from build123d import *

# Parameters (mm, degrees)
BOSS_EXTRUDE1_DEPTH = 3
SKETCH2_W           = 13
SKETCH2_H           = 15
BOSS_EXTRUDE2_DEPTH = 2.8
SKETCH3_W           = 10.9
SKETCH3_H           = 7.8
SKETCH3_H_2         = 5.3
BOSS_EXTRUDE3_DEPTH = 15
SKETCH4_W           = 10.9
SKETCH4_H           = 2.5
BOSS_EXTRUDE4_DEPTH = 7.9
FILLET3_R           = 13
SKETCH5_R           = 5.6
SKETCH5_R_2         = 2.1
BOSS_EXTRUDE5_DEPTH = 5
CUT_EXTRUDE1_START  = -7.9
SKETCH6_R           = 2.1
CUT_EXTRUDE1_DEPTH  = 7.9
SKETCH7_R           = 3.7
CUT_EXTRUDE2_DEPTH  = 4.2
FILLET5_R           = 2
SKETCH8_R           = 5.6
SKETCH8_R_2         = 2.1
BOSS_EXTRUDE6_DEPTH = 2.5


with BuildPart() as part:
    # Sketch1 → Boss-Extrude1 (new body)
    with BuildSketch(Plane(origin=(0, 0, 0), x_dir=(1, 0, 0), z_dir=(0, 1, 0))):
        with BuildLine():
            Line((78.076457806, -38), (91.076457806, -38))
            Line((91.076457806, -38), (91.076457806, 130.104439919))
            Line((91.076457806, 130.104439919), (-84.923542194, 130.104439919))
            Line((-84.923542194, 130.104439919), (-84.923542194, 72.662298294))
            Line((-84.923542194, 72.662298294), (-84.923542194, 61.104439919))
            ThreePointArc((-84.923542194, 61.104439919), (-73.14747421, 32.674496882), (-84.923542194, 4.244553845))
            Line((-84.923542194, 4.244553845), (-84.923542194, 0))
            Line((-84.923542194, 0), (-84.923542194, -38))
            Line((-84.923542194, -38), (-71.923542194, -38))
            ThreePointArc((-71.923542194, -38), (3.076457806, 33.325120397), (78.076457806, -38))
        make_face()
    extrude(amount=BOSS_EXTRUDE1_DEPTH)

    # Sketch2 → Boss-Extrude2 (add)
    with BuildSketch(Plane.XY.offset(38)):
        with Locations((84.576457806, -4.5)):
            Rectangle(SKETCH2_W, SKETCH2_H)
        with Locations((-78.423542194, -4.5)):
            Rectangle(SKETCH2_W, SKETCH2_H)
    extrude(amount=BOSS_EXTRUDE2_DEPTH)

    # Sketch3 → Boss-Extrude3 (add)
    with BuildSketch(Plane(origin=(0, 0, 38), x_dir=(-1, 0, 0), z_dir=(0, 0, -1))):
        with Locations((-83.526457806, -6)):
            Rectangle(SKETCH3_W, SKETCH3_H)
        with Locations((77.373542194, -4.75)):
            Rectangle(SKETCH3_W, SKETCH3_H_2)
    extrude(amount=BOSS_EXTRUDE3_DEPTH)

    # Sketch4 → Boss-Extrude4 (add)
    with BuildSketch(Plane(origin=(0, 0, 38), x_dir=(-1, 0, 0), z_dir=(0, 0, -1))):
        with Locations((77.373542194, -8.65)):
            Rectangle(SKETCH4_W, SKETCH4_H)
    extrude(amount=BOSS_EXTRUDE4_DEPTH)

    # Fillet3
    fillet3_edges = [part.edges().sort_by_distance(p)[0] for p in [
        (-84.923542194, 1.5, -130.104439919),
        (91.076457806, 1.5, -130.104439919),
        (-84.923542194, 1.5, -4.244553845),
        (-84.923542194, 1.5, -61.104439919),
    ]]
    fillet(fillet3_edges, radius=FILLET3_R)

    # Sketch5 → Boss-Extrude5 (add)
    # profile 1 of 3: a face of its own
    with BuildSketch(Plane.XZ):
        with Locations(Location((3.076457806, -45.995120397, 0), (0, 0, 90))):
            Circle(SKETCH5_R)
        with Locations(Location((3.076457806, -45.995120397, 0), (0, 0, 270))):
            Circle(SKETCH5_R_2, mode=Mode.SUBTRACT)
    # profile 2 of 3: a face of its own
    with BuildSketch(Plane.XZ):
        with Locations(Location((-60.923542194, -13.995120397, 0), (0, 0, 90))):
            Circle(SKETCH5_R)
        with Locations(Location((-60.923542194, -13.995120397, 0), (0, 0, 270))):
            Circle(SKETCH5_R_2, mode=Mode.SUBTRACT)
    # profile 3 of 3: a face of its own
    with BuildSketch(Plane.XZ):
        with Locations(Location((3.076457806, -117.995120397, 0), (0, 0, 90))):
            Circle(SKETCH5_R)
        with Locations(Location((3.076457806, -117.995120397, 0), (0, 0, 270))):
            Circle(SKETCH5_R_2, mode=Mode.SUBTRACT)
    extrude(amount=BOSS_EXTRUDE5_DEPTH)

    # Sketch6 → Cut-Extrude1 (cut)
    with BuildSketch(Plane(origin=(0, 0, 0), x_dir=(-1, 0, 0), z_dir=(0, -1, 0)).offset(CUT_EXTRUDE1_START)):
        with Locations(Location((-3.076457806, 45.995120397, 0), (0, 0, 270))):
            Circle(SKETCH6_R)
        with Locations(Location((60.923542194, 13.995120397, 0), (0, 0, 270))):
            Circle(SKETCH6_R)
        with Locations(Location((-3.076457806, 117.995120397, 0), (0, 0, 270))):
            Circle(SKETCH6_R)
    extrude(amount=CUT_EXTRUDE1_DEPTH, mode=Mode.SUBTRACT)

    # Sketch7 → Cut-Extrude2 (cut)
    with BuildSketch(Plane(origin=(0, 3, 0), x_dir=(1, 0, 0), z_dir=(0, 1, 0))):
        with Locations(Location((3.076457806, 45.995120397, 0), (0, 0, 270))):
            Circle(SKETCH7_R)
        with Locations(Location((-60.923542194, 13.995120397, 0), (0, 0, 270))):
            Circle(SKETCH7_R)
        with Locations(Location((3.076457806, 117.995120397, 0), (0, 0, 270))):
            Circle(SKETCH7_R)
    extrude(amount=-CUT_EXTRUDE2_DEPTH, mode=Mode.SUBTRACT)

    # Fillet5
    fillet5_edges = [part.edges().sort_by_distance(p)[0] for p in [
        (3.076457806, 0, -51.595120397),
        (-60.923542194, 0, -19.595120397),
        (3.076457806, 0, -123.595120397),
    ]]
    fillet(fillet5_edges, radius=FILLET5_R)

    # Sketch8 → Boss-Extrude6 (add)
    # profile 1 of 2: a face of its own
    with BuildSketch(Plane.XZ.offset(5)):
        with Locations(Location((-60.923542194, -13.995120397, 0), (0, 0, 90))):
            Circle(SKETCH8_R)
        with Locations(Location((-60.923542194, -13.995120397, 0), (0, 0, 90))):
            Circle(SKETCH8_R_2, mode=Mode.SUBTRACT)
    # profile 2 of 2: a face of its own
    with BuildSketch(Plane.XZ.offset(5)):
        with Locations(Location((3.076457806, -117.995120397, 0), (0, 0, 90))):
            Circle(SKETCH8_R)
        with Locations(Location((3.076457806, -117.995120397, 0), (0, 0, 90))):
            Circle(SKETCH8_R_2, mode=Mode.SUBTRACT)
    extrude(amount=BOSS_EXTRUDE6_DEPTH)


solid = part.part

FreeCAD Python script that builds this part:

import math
import FreeCAD as App
import Part
import Sketcher


def edges_at(feature, points):
    """Names of the edges that pass closest to the given points."""
    edges = feature.Shape.Edges
    near = lambda p: min(range(len(edges)), key=lambda i: edges[i].distToShape(Part.Vertex(*p))[0])
    return sorted({f"Edge{near(p) + 1}" for p in points})

doc = App.newDocument("Part")
body = doc.addObject("PartDesign::Body", "Body")

sketch1 = doc.addObject("Sketcher::SketchObject", "Sketch")
body.addObject(sketch1)
sketch1.AttachmentSupport = (doc.XZ_Plane, [""])
sketch1.MapMode = "FlatFace"
sketch1.addGeometry([
    Part.LineSegment(App.Vector(78, 38, 0), App.Vector(91, 38, 0)),
    Part.LineSegment(App.Vector(91, 38, 0), App.Vector(91, -130, 0)),
    Part.LineSegment(App.Vector(91, -130, 0), App.Vector(-85, -130, 0)),
    Part.LineSegment(App.Vector(-85, -130, 0), App.Vector(-85, -61, 0)),
    Part.ArcOfCircle(Part.Circle(App.Vector(-113, -33, 0), App.Vector(0, 0, 1), 40), math.radians(-45), math.radians(45)),
    Part.LineSegment(App.Vector(-85, -4, 0), App.Vector(-85, 38, 0)),
    Part.LineSegment(App.Vector(-85, 38, 0), App.Vector(-72, 38, 0)),
    Part.ArcOfCircle(Part.Circle(App.Vector(3, 42, 0), App.Vector(0, 0, 1), 75), math.radians(-177), math.radians(-3)),
], False)
sketch1.addConstraint([
    Sketcher.Constraint("Coincident", 0, 2, 1, 1),
    Sketcher.Constraint("Coincident", 1, 2, 2, 1),
    Sketcher.Constraint("Coincident", 2, 2, 3, 1),
    Sketcher.Constraint("Coincident", 3, 2, 4, 1),
    Sketcher.Constraint("Coincident", 4, 2, 5, 1),
    Sketcher.Constraint("Coincident", 5, 2, 6, 1),
    Sketcher.Constraint("Coincident", 6, 2, 7, 1),
    Sketcher.Constraint("Coincident", 7, 2, 0, 1),
    Sketcher.Constraint("Horizontal", 0),
    Sketcher.Constraint("Vertical", 1),
    Sketcher.Constraint("Horizontal", 2),
    Sketcher.Constraint("Vertical", 3),
    Sketcher.Constraint("Vertical", 5),
    Sketcher.Constraint("Horizontal", 6),
    Sketcher.Constraint("Horizontal", 0, 2, 5, 2),
    Sketcher.Constraint("Vertical", 3, 2, 4, 2),
    Sketcher.Constraint("Equal", 0, 6),
    Sketcher.Constraint("DistanceX", 0, 1, 0, 2, 13.0),
    Sketcher.Constraint("DistanceX", 2, 2, 2, 1, 176.0),
    Sketcher.Constraint("DistanceY", 3, 1, 3, 2, 69.0),
    Sketcher.Constraint("DistanceY", -1, 1, 0, 2, 38.0),
    Sketcher.Constraint("Radius", 4, 40.206011),
    Sketcher.Constraint("Radius", 7, 75.09467),
    Sketcher.Constraint("DistanceY", 1, 2, 1, 1, 168.10444),
    Sketcher.Constraint("DistanceY", 5, 1, 5, 2, 42.244554),
    Sketcher.Constraint("DistanceX", 4, 3, -1, 1, 113.353485),
])
pad1 = doc.addObject("PartDesign::Pad", "Pad")
body.addObject(pad1)
pad1.Profile = sketch1
pad1.Length = 3
pad1.Reversed = True

sketch2 = doc.addObject("Sketcher::SketchObject", "Sketch001")
body.addObject(sketch2)
sketch2.AttachmentSupport = (doc.XY_Plane, [""])
sketch2.MapMode = "FlatFace"
sketch2.AttachmentOffset = App.Placement(App.Vector(0, 0, 38), App.Rotation())
sketch2.addGeometry([
    Part.LineSegment(App.Vector(78, 3, 0), App.Vector(78, -12, 0)),
    Part.LineSegment(App.Vector(78, -12, 0), App.Vector(91, -12, 0)),
    Part.LineSegment(App.Vector(91, -12, 0), App.Vector(91, 3, 0)),
    Part.LineSegment(App.Vector(91, 3, 0), App.Vector(78, 3, 0)),
    Part.LineSegment(App.Vector(-85, 3, 0), App.Vector(-85, -12, 0)),
    Part.LineSegment(App.Vector(-85, -12, 0), App.Vector(-72, -12, 0)),
    Part.LineSegment(App.Vector(-72, -12, 0), App.Vector(-72, 3, 0)),
    Part.LineSegment(App.Vector(-72, 3, 0), App.Vector(-85, 3, 0)),
], False)
sketch2.addConstraint([
    Sketcher.Constraint("Coincident", 0, 2, 1, 1),
    Sketcher.Constraint("Coincident", 1, 2, 2, 1),
    Sketcher.Constraint("Coincident", 2, 2, 3, 1),
    Sketcher.Constraint("Coincident", 3, 2, 0, 1),
    Sketcher.Constraint("Coincident", 4, 2, 5, 1),
    Sketcher.Constraint("Coincident", 5, 2, 6, 1),
    Sketcher.Constraint("Coincident", 6, 2, 7, 1),
    Sketcher.Constraint("Coincident", 7, 2, 4, 1),
    Sketcher.Constraint("Vertical", 0),
    Sketcher.Constraint("Horizontal", 1),
    Sketcher.Constraint("Vertical", 2),
    Sketcher.Constraint("Horizontal", 3),
    Sketcher.Constraint("Vertical", 4),
    Sketcher.Constraint("Horizontal", 5),
    Sketcher.Constraint("Vertical", 6),
    Sketcher.Constraint("Horizontal", 7),
    Sketcher.Constraint("Horizontal", 1, 2, 4, 2),
    Sketcher.Constraint("Horizontal", 3, 2, 6, 2),
    Sketcher.Constraint("Equal", 3, 5),
    Sketcher.Constraint("DistanceX", 1, 1, 1, 2, 13.0),
    Sketcher.Constraint("DistanceY", 0, 2, 0, 1, 15.0),
    Sketcher.Constraint("DistanceY", 0, 2, -1, 1, 12.0),
    Sketcher.Constraint("DistanceX", 4, 2, 0, 2, 163.0),
    Sketcher.Constraint("DistanceX", -1, 1, 0, 2, 78.076458),
])
pad2 = doc.addObject("PartDesign::Pad", "Pad001")
body.addObject(pad2)
pad2.Profile = sketch2
pad2.Length = 2.8

sketch3 = doc.addObject("Sketcher::SketchObject", "Sketch002")
body.addObject(sketch3)
sketch3.AttachmentSupport = (doc.XY_Plane, [""])
sketch3.MapMode = "FlatFace"
sketch3.AttachmentOffset = App.Placement(App.Vector(0, 0, 38), App.Rotation())
sketch3.addGeometry([
    Part.LineSegment(App.Vector(89, -2, 0), App.Vector(89, -10, 0)),
    Part.LineSegment(App.Vector(89, -10, 0), App.Vector(78, -10, 0)),
    Part.LineSegment(App.Vector(78, -10, 0), App.Vector(78, -2, 0)),
    Part.LineSegment(App.Vector(78, -2, 0), App.Vector(89, -2, 0)),
    Part.LineSegment(App.Vector(-72, -2, 0), App.Vector(-72, -7, 0)),
    Part.LineSegment(App.Vector(-72, -7, 0), App.Vector(-83, -7, 0)),
    Part.LineSegment(App.Vector(-83, -7, 0), App.Vector(-83, -2, 0)),
    Part.LineSegment(App.Vector(-83, -2, 0), App.Vector(-72, -2, 0)),
], False)
sketch3.addConstraint([
    Sketcher.Constraint("Coincident", 0, 2, 1, 1),
    Sketcher.Constraint("Coincident", 1, 2, 2, 1),
    Sketcher.Constraint("Coincident", 2, 2, 3, 1),
    Sketcher.Constraint("Coincident", 3, 2, 0, 1),
    Sketcher.Constraint("Coincident", 4, 2, 5, 1),
    Sketcher.Constraint("Coincident", 5, 2, 6, 1),
    Sketcher.Constraint("Coincident", 6, 2, 7, 1),
    Sketcher.Constraint("Coincident", 7, 2, 4, 1),
    Sketcher.Constraint("Vertical", 0),
    Sketcher.Constraint("Horizontal", 1),
    Sketcher.Constraint("Vertical", 2),
    Sketcher.Constraint("Horizontal", 3),
    Sketcher.Constraint("Vertical", 4),
    Sketcher.Constraint("Horizontal", 5),
    Sketcher.Constraint("Vertical", 6),
    Sketcher.Constraint("Horizontal", 7),
    Sketcher.Constraint("Horizontal", 3, 2, 6, 2),
    Sketcher.Constraint("Equal", 3, 5),
    Sketcher.Constraint("DistanceX", 1, 2, 1, 1, 10.9),
    Sketcher.Constraint("DistanceY", 0, 2, 0, 1, 7.8),
    Sketcher.Constraint("DistanceY", 4, 2, 4, 1, 5.3),
    Sketcher.Constraint("DistanceX", 4, 2, 1, 2, 150.0),
    Sketcher.Constraint("DistanceY", 0, 2, -1, 1, 9.9),
    Sketcher.Constraint("DistanceX", -1, 1, 0, 2, 88.976458),
])
pad3 = doc.addObject("PartDesign::Pad", "Pad002")
body.addObject(pad3)
pad3.Profile = sketch3
pad3.Length = 15
pad3.Reversed = True

sketch4 = doc.addObject("Sketcher::SketchObject", "Sketch003")
body.addObject(sketch4)
sketch4.AttachmentSupport = (doc.XY_Plane, [""])
sketch4.MapMode = "FlatFace"
sketch4.AttachmentOffset = App.Placement(App.Vector(0, 0, 38), App.Rotation())
sketch4.addGeometry([
    Part.LineSegment(App.Vector(-71.9, -7.4, 0), App.Vector(-71.9, -9.9, 0)),
    Part.LineSegment(App.Vector(-71.9, -9.9, 0), App.Vector(-82.8, -9.9, 0)),
    Part.LineSegment(App.Vector(-82.8, -9.9, 0), App.Vector(-82.8, -7.4, 0)),
    Part.LineSegment(App.Vector(-82.8, -7.4, 0), App.Vector(-71.9, -7.4, 0)),
], False)
sketch4.addConstraint([
    Sketcher.Constraint("Coincident", 0, 2, 1, 1),
    Sketcher.Constraint("Coincident", 1, 2, 2, 1),
    Sketcher.Constraint("Coincident", 2, 2, 3, 1),
    Sketcher.Constraint("Coincident", 3, 2, 0, 1),
    Sketcher.Constraint("Vertical", 0),
    Sketcher.Constraint("Horizontal", 1),
    Sketcher.Constraint("Vertical", 2),
    Sketcher.Constraint("Horizontal", 3),
    Sketcher.Constraint("DistanceX", 1, 2, 1, 1, 10.9),
    Sketcher.Constraint("DistanceY", 0, 2, 0, 1, 2.5),
    Sketcher.Constraint("DistanceY", 0, 2, -1, 1, 9.9),
    Sketcher.Constraint("DistanceX", 0, 2, -1, 1, 71.923542),
])
pad4 = doc.addObject("PartDesign::Pad", "Pad003")
body.addObject(pad4)
pad4.Profile = sketch4
pad4.Length = 7.9
pad4.Reversed = True
doc.recompute()

fillet = doc.addObject("PartDesign::Fillet", "Fillet")
body.addObject(fillet)
fillet.Base = (pad4, edges_at(pad4, [
    (-84.924, 1.5, -130.104),
    (91.076, 1.5, -130.104),
    (-84.924, 1.5, -4.245),
    (-84.924, 1.5, -61.104),
]))
fillet.Radius = 13

sketch5 = doc.addObject("Sketcher::SketchObject", "Sketch004")
body.addObject(sketch5)
sketch5.AttachmentSupport = (doc.XZ_Plane, [""])
sketch5.MapMode = "FlatFace"
sketch5.addGeometry([
    Part.Circle(App.Vector(3.1, -46, 0), App.Vector(0, 0, 1), 5.6),
    Part.Circle(App.Vector(3.1, -46, 0), App.Vector(0, 0, 1), 2.1),
    Part.Circle(App.Vector(-60.9, -14, 0), App.Vector(0, 0, 1), 5.6),
    Part.Circle(App.Vector(-60.9, -14, 0), App.Vector(0, 0, 1), 2.1),
    Part.Circle(App.Vector(3.1, -118, 0), App.Vector(0, 0, 1), 5.6),
    Part.Circle(App.Vector(3.1, -118, 0), App.Vector(0, 0, 1), 2.1),
], False)
sketch5.addConstraint([
    Sketcher.Constraint("Coincident", 1, 3, 0, 3),
    Sketcher.Constraint("Coincident", 3, 3, 2, 3),
    Sketcher.Constraint("Coincident", 5, 3, 4, 3),
    Sketcher.Constraint("Equal", 0, 2),
    Sketcher.Constraint("Equal", 1, 3),
    Sketcher.Constraint("Equal", 2, 4),
    Sketcher.Constraint("Equal", 3, 5),
    Sketcher.Constraint("Vertical", 1, 3, 4, 3),
    Sketcher.Constraint("Diameter", 0, 11.2),
    Sketcher.Constraint("Diameter", 1, 4.2),
    Sketcher.Constraint("DistanceX", 2, 3, 0, 3, 64.0),
    Sketcher.Constraint("DistanceY", 0, 3, 2, 3, 32.0),
    Sketcher.Constraint("DistanceY", 4, 3, 0, 3, 72.0),
    Sketcher.Constraint("DistanceY", 0, 3, -1, 1, 45.99512),
    Sketcher.Constraint("DistanceX", -1, 1, 0, 3, 3.076458),
])
pad5 = doc.addObject("PartDesign::Pad", "Pad004")
body.addObject(pad5)
pad5.Profile = sketch5
pad5.Length = 5

sketch6 = doc.addObject("Sketcher::SketchObject", "Sketch005")
body.addObject(sketch6)
sketch6.AttachmentSupport = (doc.XZ_Plane, [""])
sketch6.MapMode = "FlatFace"
sketch6.AttachmentOffset = App.Placement(App.Vector(0, 0, -7.9), App.Rotation())
sketch6.addGeometry([
    Part.Circle(App.Vector(3.1, -46, 0), App.Vector(0, 0, 1), 2.1),
    Part.Circle(App.Vector(-60.9, -14, 0), App.Vector(0, 0, 1), 2.1),
    Part.Circle(App.Vector(3.1, -118, 0), App.Vector(0, 0, 1), 2.1),
], False)
sketch6.addConstraint([
    Sketcher.Constraint("Equal", 0, 1),
    Sketcher.Constraint("Equal", 1, 2),
    Sketcher.Constraint("Vertical", 0, 3, 2, 3),
    Sketcher.Constraint("Diameter", 0, 4.2),
    Sketcher.Constraint("DistanceX", 1, 3, 0, 3, 64.0),
    Sketcher.Constraint("DistanceY", 0, 3, 1, 3, 32.0),
    Sketcher.Constraint("DistanceY", 2, 3, 0, 3, 72.0),
    Sketcher.Constraint("DistanceY", 0, 3, -1, 1, 45.99512),
    Sketcher.Constraint("DistanceX", -1, 1, 0, 3, 3.076458),
])
pocket1 = doc.addObject("PartDesign::Pocket", "Pocket")
body.addObject(pocket1)
pocket1.Profile = sketch6
pocket1.Length = 7.9
pocket1.Reversed = True

sketch7 = doc.addObject("Sketcher::SketchObject", "Sketch006")
body.addObject(sketch7)
sketch7.AttachmentSupport = (doc.XZ_Plane, [""])
sketch7.MapMode = "FlatFace"
sketch7.AttachmentOffset = App.Placement(App.Vector(0, 0, -3), App.Rotation())
sketch7.addGeometry([
    Part.Circle(App.Vector(3.1, -46, 0), App.Vector(0, 0, 1), 3.7),
    Part.Circle(App.Vector(-60.9, -14, 0), App.Vector(0, 0, 1), 3.7),
    Part.Circle(App.Vector(3.1, -118, 0), App.Vector(0, 0, 1), 3.7),
], False)
sketch7.addConstraint([
    Sketcher.Constraint("Equal", 0, 1),
    Sketcher.Constraint("Equal", 1, 2),
    Sketcher.Constraint("Vertical", 0, 3, 2, 3),
    Sketcher.Constraint("Diameter", 0, 7.4),
    Sketcher.Constraint("DistanceX", 1, 3, 0, 3, 64.0),
    Sketcher.Constraint("DistanceY", 0, 3, 1, 3, 32.0),
    Sketcher.Constraint("DistanceY", 2, 3, 0, 3, 72.0),
    Sketcher.Constraint("DistanceY", 0, 3, -1, 1, 45.99512),
    Sketcher.Constraint("DistanceX", -1, 1, 0, 3, 3.076458),
])
pocket2 = doc.addObject("PartDesign::Pocket", "Pocket001")
body.addObject(pocket2)
pocket2.Profile = sketch7
pocket2.Length = 4.2
pocket2.Reversed = True
doc.recompute()

fillet2 = doc.addObject("PartDesign::Fillet", "Fillet001")
body.addObject(fillet2)
fillet2.Base = (pocket2, edges_at(pocket2, [(3.076, 0, -51.595), (-60.924, 0, -19.595), (3.076, 0, -123.595)]))
fillet2.Radius = 2

sketch8 = doc.addObject("Sketcher::SketchObject", "Sketch007")
body.addObject(sketch8)
sketch8.AttachmentSupport = (doc.XZ_Plane, [""])
sketch8.MapMode = "FlatFace"
sketch8.AttachmentOffset = App.Placement(App.Vector(0, 0, 5), App.Rotation())
sketch8.addGeometry([
    Part.Circle(App.Vector(-60.9, -14, 0), App.Vector(0, 0, 1), 5.6),
    Part.Circle(App.Vector(-60.9, -14, 0), App.Vector(0, 0, 1), 2.1),
    Part.Circle(App.Vector(3.1, -118, 0), App.Vector(0, 0, 1), 5.6),
    Part.Circle(App.Vector(3.1, -118, 0), App.Vector(0, 0, 1), 2.1),
], False)
sketch8.addConstraint([
    Sketcher.Constraint("Coincident", 1, 3, 0, 3),
    Sketcher.Constraint("Coincident", 3, 3, 2, 3),
    Sketcher.Constraint("Equal", 0, 2),
    Sketcher.Constraint("Equal", 1, 3),
    Sketcher.Constraint("Diameter", 0, 11.2),
    Sketcher.Constraint("Diameter", 1, 4.2),
    Sketcher.Constraint("DistanceX", 0, 3, 2, 3, 64.0),
    Sketcher.Constraint("DistanceY", 2, 3, 0, 3, 104.0),
    Sketcher.Constraint("DistanceY", 0, 3, -1, 1, 13.99512),
    Sketcher.Constraint("DistanceX", 0, 3, -1, 1, 60.923542),
])
pad6 = doc.addObject("PartDesign::Pad", "Pad005")
body.addObject(pad6)
pad6.Profile = sketch8
pad6.Length = 2.5

doc.recompute()
